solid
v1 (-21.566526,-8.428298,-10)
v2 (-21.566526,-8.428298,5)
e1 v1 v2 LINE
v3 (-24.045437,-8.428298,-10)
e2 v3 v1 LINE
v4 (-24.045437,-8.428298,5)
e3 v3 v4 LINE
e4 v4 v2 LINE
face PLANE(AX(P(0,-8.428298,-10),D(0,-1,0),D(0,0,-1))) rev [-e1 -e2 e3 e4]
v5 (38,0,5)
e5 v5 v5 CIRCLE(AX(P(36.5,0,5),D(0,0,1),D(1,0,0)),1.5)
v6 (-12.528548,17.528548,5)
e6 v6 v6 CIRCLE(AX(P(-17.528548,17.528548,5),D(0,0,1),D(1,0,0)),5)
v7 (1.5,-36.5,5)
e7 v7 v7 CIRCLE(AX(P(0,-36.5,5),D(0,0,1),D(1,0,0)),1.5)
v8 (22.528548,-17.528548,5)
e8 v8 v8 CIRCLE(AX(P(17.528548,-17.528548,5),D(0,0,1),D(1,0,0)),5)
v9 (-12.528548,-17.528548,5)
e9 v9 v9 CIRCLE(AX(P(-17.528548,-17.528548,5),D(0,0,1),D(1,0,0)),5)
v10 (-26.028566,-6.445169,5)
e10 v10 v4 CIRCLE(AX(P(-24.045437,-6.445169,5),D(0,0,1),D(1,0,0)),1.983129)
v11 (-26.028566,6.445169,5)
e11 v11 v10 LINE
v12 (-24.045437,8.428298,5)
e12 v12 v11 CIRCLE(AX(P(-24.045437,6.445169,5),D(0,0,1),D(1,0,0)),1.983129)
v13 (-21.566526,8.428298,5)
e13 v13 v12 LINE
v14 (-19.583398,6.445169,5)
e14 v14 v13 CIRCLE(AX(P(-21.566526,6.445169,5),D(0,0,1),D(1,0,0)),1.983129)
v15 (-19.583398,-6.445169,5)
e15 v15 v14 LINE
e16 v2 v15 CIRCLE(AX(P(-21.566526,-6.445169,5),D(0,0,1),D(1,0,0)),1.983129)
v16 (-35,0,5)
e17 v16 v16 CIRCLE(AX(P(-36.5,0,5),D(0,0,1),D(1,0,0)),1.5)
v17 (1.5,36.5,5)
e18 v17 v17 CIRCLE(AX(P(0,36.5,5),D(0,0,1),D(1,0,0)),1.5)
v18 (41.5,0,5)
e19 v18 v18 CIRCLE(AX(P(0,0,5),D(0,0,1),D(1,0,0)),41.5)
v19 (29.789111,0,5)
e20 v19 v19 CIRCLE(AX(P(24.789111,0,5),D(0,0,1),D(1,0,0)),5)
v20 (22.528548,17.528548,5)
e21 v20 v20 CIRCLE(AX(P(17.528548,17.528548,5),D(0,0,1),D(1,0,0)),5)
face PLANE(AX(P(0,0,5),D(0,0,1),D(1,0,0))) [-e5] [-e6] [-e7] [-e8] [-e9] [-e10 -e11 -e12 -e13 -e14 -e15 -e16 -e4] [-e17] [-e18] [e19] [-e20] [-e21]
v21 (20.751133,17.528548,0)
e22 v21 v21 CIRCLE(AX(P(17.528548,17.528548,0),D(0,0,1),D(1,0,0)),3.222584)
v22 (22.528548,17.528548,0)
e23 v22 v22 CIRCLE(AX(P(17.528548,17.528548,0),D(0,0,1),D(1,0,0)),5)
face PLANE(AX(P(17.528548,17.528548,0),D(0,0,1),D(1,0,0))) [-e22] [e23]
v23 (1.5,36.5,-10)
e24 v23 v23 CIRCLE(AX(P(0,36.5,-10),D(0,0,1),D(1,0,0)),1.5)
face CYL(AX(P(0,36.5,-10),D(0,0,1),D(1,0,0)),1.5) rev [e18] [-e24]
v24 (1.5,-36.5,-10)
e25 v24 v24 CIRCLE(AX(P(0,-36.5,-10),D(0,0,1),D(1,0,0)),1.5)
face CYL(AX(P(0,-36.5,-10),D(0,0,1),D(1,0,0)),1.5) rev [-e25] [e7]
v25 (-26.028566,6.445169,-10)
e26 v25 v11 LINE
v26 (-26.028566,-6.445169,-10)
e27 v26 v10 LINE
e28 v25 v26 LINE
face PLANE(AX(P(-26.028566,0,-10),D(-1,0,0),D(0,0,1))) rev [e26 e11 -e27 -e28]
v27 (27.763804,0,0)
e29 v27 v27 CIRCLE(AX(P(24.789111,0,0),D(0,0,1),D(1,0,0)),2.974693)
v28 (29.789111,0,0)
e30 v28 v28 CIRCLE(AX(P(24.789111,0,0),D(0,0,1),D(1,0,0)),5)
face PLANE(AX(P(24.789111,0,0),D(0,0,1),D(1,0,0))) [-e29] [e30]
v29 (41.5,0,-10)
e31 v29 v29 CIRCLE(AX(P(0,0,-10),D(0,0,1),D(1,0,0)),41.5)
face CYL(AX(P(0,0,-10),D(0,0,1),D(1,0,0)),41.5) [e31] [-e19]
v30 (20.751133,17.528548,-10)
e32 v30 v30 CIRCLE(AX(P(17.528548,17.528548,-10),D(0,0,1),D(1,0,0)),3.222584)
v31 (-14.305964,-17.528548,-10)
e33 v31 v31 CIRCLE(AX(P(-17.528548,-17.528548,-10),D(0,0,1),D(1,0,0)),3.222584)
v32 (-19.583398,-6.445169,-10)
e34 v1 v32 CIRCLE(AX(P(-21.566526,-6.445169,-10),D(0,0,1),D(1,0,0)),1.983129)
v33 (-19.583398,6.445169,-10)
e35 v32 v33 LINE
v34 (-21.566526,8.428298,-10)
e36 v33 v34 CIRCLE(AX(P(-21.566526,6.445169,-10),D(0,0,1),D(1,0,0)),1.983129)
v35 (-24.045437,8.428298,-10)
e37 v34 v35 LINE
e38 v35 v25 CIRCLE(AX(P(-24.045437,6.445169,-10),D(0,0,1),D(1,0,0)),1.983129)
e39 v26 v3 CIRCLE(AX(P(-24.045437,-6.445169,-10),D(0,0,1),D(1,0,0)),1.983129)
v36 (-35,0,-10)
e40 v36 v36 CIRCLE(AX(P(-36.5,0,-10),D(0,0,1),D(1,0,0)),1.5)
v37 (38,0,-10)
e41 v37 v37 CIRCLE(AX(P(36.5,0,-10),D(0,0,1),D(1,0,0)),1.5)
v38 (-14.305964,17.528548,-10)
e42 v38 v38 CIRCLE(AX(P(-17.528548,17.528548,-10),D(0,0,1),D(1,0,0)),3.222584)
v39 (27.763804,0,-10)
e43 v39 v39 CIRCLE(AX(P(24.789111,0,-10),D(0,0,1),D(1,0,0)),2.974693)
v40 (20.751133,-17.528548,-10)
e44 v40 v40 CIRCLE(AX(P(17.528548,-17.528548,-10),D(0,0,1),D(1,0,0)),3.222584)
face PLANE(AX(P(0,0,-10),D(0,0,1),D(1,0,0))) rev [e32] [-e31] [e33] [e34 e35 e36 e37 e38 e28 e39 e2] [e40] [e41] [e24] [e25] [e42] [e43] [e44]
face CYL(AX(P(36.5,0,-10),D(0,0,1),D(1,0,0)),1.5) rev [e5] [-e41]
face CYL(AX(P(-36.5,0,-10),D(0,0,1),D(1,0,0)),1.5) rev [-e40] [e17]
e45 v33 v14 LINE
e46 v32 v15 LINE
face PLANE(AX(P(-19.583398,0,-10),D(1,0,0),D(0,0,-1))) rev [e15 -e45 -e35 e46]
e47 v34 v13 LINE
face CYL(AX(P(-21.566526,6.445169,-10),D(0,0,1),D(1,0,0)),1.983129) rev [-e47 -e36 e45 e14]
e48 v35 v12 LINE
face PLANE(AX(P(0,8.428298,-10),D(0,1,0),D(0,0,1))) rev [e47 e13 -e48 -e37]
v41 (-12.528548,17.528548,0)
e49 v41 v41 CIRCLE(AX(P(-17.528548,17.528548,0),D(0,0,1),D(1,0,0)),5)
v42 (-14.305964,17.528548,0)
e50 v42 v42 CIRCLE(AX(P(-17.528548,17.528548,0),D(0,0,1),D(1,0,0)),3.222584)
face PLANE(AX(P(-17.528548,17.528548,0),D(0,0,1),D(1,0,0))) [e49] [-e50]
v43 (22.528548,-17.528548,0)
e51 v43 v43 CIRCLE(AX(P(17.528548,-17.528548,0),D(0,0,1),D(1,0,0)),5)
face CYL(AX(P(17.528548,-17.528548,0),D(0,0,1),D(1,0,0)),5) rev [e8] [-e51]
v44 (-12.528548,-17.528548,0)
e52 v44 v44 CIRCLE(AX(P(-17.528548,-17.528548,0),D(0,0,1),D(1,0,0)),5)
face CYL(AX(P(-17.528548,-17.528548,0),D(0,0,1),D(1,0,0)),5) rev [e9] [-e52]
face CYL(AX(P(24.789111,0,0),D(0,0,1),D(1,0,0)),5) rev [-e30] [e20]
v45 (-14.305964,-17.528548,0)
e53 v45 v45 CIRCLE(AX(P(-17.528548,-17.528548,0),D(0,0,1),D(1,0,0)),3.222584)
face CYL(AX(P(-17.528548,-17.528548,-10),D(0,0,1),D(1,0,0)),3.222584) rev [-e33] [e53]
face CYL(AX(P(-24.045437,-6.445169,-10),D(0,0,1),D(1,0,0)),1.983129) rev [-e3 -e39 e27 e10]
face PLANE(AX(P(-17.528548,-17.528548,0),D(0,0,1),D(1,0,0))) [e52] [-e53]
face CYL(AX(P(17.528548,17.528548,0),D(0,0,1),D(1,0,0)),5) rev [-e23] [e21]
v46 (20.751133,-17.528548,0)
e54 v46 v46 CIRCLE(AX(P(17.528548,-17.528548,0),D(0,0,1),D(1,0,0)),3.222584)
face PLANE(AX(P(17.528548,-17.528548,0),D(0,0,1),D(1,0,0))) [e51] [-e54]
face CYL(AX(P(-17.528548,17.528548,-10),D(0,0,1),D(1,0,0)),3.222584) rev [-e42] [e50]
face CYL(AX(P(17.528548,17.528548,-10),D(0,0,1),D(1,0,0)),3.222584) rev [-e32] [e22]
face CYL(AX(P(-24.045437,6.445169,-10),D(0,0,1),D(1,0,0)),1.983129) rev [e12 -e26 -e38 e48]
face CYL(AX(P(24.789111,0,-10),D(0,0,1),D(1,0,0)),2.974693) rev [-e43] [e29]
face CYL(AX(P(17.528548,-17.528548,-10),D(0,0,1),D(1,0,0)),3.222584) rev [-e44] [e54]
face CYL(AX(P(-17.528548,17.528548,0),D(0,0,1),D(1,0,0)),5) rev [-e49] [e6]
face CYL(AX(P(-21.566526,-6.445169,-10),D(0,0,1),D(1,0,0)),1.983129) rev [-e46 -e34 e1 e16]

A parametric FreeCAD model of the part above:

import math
import FreeCAD as App
import Part
import Sketcher
Q = App.Units.Quantity

doc = App.newDocument("Part")
body = doc.addObject("PartDesign::Body", "Body")

sketch1 = body.newObject("Sketcher::SketchObject", "Sketch")
sketch1.AttachmentSupport = (doc.getObject("XY_Plane"), [""])
sketch1.MapMode = "FlatFace"
sketch1.addGeometry([
    Part.Circle(App.Vector(0, 0, 0), App.Vector(0, 0, 1), 41.5),
    Part.Circle(App.Vector(-17.5, -17.5, 0), App.Vector(0, 0, 1), 3.2),
    Part.Circle(App.Vector(17.5, -17.5, 0), App.Vector(0, 0, 1), 3.2),
    Part.ArcOfCircle(Part.Circle(App.Vector(-24, 6.4, 0), App.Vector(0, 0, 1), 2), math.radians(90), math.radians(180)),
    Part.LineSegment(App.Vector(-24, 8.4, 0), App.Vector(-21.6, 8.4, 0)),
    Part.ArcOfCircle(Part.Circle(App.Vector(-21.6, 6.4, 0), App.Vector(0, 0, 1), 2), math.radians(37), math.radians(90)),
    Part.ArcOfCircle(Part.Circle(App.Vector(-21.6, 6.4, 0), App.Vector(0, 0, 1), 2), math.radians(0), math.radians(37)),
    Part.LineSegment(App.Vector(-19.6, 6.4, 0), App.Vector(-19.6, -6.4, 0)),
    Part.ArcOfCircle(Part.Circle(App.Vector(-21.6, -6.4, 0), App.Vector(0, 0, 1), 2), math.radians(-90), math.radians(0)),
    Part.LineSegment(App.Vector(-21.6, -8.4, 0), App.Vector(-24, -8.4, 0)),
    Part.ArcOfCircle(Part.Circle(App.Vector(-24, -6.4, 0), App.Vector(0, 0, 1), 2), math.radians(180), math.radians(270)),
    Part.LineSegment(App.Vector(-26, -6.4, 0), App.Vector(-26, 6.4, 0)),
    Part.Circle(App.Vector(-17.5, 17.5, 0), App.Vector(0, 0, 1), 3.2),
    Part.ArcOfCircle(Part.Circle(App.Vector(24.8, 0, 0), App.Vector(0, 0, 1), 3), math.radians(180), math.radians(360)),
    Part.ArcOfCircle(Part.Circle(App.Vector(24.8, 0, 0), App.Vector(0, 0, 1), 3), math.radians(0), math.radians(180)),
    Part.Circle(App.Vector(17.5, 17.5, 0), App.Vector(0, 0, 1), 3.2),
], False)
sketch1.addConstraint([
    Sketcher.Constraint("Tangent", 3, 1, 4, 1),
    Sketcher.Constraint("Tangent", 4, 2, 5, 2),
    Sketcher.Constraint("Tangent", 5, 1, 6, 2),
    Sketcher.Constraint("Tangent", 6, 1, 7, 1),
    Sketcher.Constraint("Tangent", 7, 2, 8, 2),
    Sketcher.Constraint("Tangent", 8, 1, 9, 1),
    Sketcher.Constraint("Tangent", 9, 2, 10, 2),
    Sketcher.Constraint("Tangent", 10, 1, 11, 1),
    Sketcher.Constraint("Tangent", 11, 2, 3, 2),
    Sketcher.Constraint("Tangent", 13, 1, 14, 2),
    Sketcher.Constraint("Coincident", 14, 1, 13, 2),
    Sketcher.Constraint("Horizontal", 4),
    Sketcher.Constraint("Vertical", 7),
    Sketcher.Constraint("Horizontal", 9),
    Sketcher.Constraint("Vertical", 11),
    Sketcher.Constraint("Coincident", 0, 3, -1, 1),
    Sketcher.Constraint("Equal", 1, 2),
    Sketcher.Constraint("Equal", 3, 5),
    Sketcher.Constraint("Equal", 5, 6),
    Sketcher.Constraint("Equal", 6, 8),
    Sketcher.Constraint("Equal", 8, 10),
    Sketcher.Constraint("Equal", 2, 12),
    Sketcher.Constraint("Equal", 12, 15),
    Sketcher.Constraint("Symmetric", 2, 3, 12, 3, -1, 1),
    Sketcher.Constraint("Symmetric", 1, 3, 15, 3, -1, 1),
    Sketcher.Constraint("Symmetric", 1, 3, 2, 3, -2),
    Sketcher.Constraint("PointOnObject", 13, 3, -1),
    Sketcher.Constraint("PointOnObject", 13, 1, -1),
    Sketcher.Constraint("PointOnObject", 14, 1, -1),
    Sketcher.Constraint("Diameter", 0, Q("83 mm")),
    Sketcher.Constraint("Diameter", 1, Q("6.445169 mm")),
    Sketcher.Constraint("Radius", 3, Q("1.983129 mm")),
    Sketcher.Constraint("Radius", 13, Q("2.974693 mm")),
    Sketcher.Constraint("DistanceX", 4, 1, 4, 2, Q("2.478911 mm")),
    Sketcher.Constraint("DistanceY", 7, 2, 7, 1, Q("12.890338 mm")),
    Sketcher.Constraint("DistanceX", 1, 3, -1, 1, Q("17.528548 mm")),
    Sketcher.Constraint("DistanceY", 1, 3, -1, 1, Q("17.528548 mm")),
    Sketcher.Constraint("DistanceY", -1, 1, 3, 3, Q("6.445169 mm")),
    Sketcher.Constraint("DistanceX", -1, 1, 13, 3, Q("24.789111 mm")),
    Sketcher.Constraint("DistanceY", -1, 1, 5, 1, Q("7.642159 mm")),
    Sketcher.Constraint("DistanceX", 3, 3, 1, 3, Q("6.516889 mm")),
])
pad1 = body.newObject("PartDesign::Pad", "Pad")
pad1.Profile = sketch1
pad1.Type = "TwoLengths"
pad1.Length = 5
pad1.Length2 = 10

sketch2 = body.newObject("Sketcher::SketchObject", "Sketch001")
sketch2.AttachmentSupport = (doc.getObject("XY_Plane"), [""])
sketch2.MapMode = "FlatFace"
sketch2.AttachmentOffset = App.Placement(App.Vector(0, 0, 5), App.Rotation())
sketch2.addGeometry([
    Part.Circle(App.Vector(-17.5, 17.5, 0), App.Vector(0, 0, 1), 5),
    Part.Circle(App.Vector(-17.5, 17.5, 0), App.Vector(0, 0, 1), 3.2),
    Part.Circle(App.Vector(17.5, 17.5, 0), App.Vector(0, 0, 1), 5),
    Part.Circle(App.Vector(17.5, 17.5, 0), App.Vector(0, 0, 1), 3.2),
    Part.Circle(App.Vector(-17.5, -17.5, 0), App.Vector(0, 0, 1), 5),
    Part.Circle(App.Vector(-17.5, -17.5, 0), App.Vector(0, 0, 1), 3.2),
    Part.Circle(App.Vector(17.5, -17.5, 0), App.Vector(0, 0, 1), 5),
    Part.Circle(App.Vector(17.5, -17.5, 0), App.Vector(0, 0, 1), 3.2),
    Part.Circle(App.Vector(24.8, 0, 0), App.Vector(0, 0, 1), 5),
    Part.ArcOfCircle(Part.Circle(App.Vector(24.8, 0, 0), App.Vector(0, 0, 1), 3), math.radians(180), math.radians(360)),
    Part.ArcOfCircle(Part.Circle(App.Vector(24.8, 0, 0), App.Vector(0, 0, 1), 3), math.radians(0), math.radians(180)),
], False)
sketch2.addConstraint([
    Sketcher.Constraint("Tangent", 9, 1, 10, 2),
    Sketcher.Constraint("Coincident", 10, 1, 9, 2),
    Sketcher.Constraint("Coincident", 1, 3, 0, 3),
    Sketcher.Constraint("Coincident", 3, 3, 2, 3),
    Sketcher.Constraint("Coincident", 5, 3, 4, 3),
    Sketcher.Constraint("Coincident", 7, 3, 6, 3),
    Sketcher.Constraint("Coincident", 9, 3, 8, 3),
    Sketcher.Constraint("Equal", 0, 2),
    Sketcher.Constraint("Equal", 1, 3),
    Sketcher.Constraint("Equal", 2, 4),
    Sketcher.Constraint("Equal", 3, 5),
    Sketcher.Constraint("Equal", 4, 6),
    Sketcher.Constraint("Equal", 5, 7),
    Sketcher.Constraint("Equal", 6, 8),
    Sketcher.Constraint("Symmetric", 2, 3, 4, 3, -1, 1),
    Sketcher.Constraint("Symmetric", 0, 3, 6, 3, -1, 1),
    Sketcher.Constraint("Symmetric", 0, 3, 2, 3, -2),
    Sketcher.Constraint("PointOnObject", 8, 3, -1),
    Sketcher.Constraint("PointOnObject", 9, 1, -1),
    Sketcher.Constraint("PointOnObject", 10, 1, -1),
    Sketcher.Constraint("Diameter", 0, Q("10 mm")),
    Sketcher.Constraint("Diameter", 1, Q("6.445169 mm")),
    Sketcher.Constraint("Radius", 9, Q("2.974693 mm")),
    Sketcher.Constraint("DistanceX", 0, 3, -1, 1, Q("17.528548 mm")),
    Sketcher.Constraint("DistanceY", -1, 1, 0, 3, Q("17.528548 mm")),
    Sketcher.Constraint("DistanceX", -1, 1, 8, 3, Q("24.789111 mm")),
])
pocket1 = body.newObject("PartDesign::Pocket", "Pocket")
pocket1.Profile = sketch2
pocket1.Length = 5

sketch3 = body.newObject("Sketcher::SketchObject", "Sketch002")
sketch3.AttachmentSupport = (doc.getObject("XY_Plane"), [""])
sketch3.MapMode = "FlatFace"
sketch3.AttachmentOffset = App.Placement(App.Vector(0, 0, 5), App.Rotation())
sketch3.addGeometry([
    Part.Circle(App.Vector(-36.5, 0, 0), App.Vector(0, 0, 1), 1.5),
    Part.Circle(App.Vector(0, -36.5, 0), App.Vector(0, 0, 1), 1.5),
    Part.Circle(App.Vector(36.5, 0, 0), App.Vector(0, 0, 1), 1.5),
    Part.Circle(App.Vector(0, 36.5, 0), App.Vector(0, 0, 1), 1.5),
], False)
sketch3.addConstraint([
    Sketcher.Constraint("Equal", 0, 1),
    Sketcher.Constraint("Equal", 1, 2),
    Sketcher.Constraint("Equal", 2, 3),
    Sketcher.Constraint("Symmetric", 0, 3, 2, 3, -1, 1),
    Sketcher.Constraint("Symmetric", 1, 3, 3, 3, -1, 1),
    Sketcher.Constraint("PointOnObject", 0, 3, -1),
    Sketcher.Constraint("PointOnObject", 1, 3, -2),
    Sketcher.Constraint("Diameter", 0, Q("3 mm")),
    Sketcher.Constraint("DistanceX", 0, 3, 2, 3, Q("73 mm")),
    Sketcher.Constraint("DistanceY", 1, 3, 3, 3, Q("73 mm")),
])
pocket2 = body.newObject("PartDesign::Pocket", "Pocket001")
pocket2.Profile = sketch3
pocket2.Type = "ThroughAll"

doc.recompute()
